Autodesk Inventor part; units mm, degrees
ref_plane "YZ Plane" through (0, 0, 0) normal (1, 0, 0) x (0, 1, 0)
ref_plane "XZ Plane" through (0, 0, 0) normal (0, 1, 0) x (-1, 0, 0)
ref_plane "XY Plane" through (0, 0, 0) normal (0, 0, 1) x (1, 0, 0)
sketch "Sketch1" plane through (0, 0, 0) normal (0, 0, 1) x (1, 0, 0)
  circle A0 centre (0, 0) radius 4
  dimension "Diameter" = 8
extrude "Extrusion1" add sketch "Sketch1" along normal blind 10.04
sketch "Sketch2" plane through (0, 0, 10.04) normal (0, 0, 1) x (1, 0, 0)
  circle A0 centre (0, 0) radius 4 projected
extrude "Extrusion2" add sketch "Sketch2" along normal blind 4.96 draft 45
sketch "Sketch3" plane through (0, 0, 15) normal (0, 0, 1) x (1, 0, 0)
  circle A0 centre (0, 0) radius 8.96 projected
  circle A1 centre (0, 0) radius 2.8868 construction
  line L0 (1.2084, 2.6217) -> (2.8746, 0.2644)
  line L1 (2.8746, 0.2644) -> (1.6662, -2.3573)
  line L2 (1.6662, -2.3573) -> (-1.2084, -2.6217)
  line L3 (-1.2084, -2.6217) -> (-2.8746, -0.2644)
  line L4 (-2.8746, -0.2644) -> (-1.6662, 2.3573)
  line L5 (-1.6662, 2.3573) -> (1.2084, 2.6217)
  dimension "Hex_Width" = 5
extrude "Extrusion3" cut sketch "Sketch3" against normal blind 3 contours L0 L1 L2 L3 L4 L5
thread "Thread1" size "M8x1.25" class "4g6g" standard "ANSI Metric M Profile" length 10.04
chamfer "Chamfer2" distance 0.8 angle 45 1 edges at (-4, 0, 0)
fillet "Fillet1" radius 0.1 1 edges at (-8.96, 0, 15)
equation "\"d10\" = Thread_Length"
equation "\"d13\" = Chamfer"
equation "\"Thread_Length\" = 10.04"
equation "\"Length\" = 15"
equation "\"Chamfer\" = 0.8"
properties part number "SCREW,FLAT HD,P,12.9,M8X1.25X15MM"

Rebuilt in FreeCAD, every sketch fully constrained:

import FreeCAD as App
import Part
import Sketcher

V = App.Vector
Q = App.Units.Quantity


def edges_at(feature, points):
    """Names of the edges that pass closest to the given points."""
    edges = feature.Shape.Edges
    near = lambda p: min(range(len(edges)), key=lambda i: edges[i].distToShape(Part.Vertex(*p))[0])
    return sorted({f"Edge{near(p) + 1}" for p in points})


def add_polygon(sketch, points):
    """Adds a closed chain of lines whose ends are joined by coincident constraints."""
    first, n = sketch.GeometryCount, len(points)
    for a, b in zip(points, points[1:] + points[:1]):
        sketch.addGeometry(Part.LineSegment(App.Vector(*a, 0), App.Vector(*b, 0)), False)
    for i in range(n):
        sketch.addConstraint(Sketcher.Constraint("Coincident", first + i, 2, first + (i + 1) % n, 1))

doc = App.newDocument("Part")
body = doc.addObject("PartDesign::Body", "Body")

# Sketch on XY plane
sketch1 = body.newObject("Sketcher::SketchObject", "Sketch")
sketch1.AttachmentSupport = (doc.getObject("XY_Plane"), [""])
sketch1.MapMode = "FlatFace"
sketch1.addGeometry(Part.Circle(V(0, 0, 0), V(0, 0, 1), 4), False)
sketch1.addConstraint(Sketcher.Constraint("Coincident", 0, 3, -1, 1))
sketch1.addConstraint(Sketcher.Constraint("Diameter", 0, Q("8 mm")))
pad1 = body.newObject("PartDesign::Pad", "Pad")
pad1.Profile = sketch1
pad1.Length = 10.04

# Sketch on XY plane
sketch2 = body.newObject("Sketcher::SketchObject", "Sketch001")
sketch2.AttachmentSupport = (doc.getObject("XY_Plane"), [""])
sketch2.MapMode = "FlatFace"
sketch2.AttachmentOffset = App.Placement(V(0, 0, 10.04), App.Rotation())
sketch2.addGeometry(Part.Circle(V(0, 0, 0), V(0, 0, 1), 4), False)
sketch2.addConstraint(Sketcher.Constraint("Coincident", 0, 3, -1, 1))
sketch2.addConstraint(Sketcher.Constraint("Diameter", 0, Q("8 mm")))
pad2 = body.newObject("PartDesign::Pad", "Pad001")
pad2.Profile = sketch2
pad2.Length = 4.96
pad2.TaperAngle = 45

# Sketch on XY plane
sketch3 = body.newObject("Sketcher::SketchObject", "Sketch002")
sketch3.AttachmentSupport = (doc.getObject("XY_Plane"), [""])
sketch3.MapMode = "FlatFace"
sketch3.AttachmentOffset = App.Placement(V(0, 0, 15), App.Rotation())
add_polygon(sketch3, [(2.9, 0.3), (1.2, 2.6), (-1.7, 2.4), (-2.9, -0.3), (-1.2, -2.6), (1.7, -2.4)])  # lines 0-5
sketch3.addConstraint(Sketcher.Constraint("Symmetric", 0, 2, 3, 2, -1, 1))
sketch3.addConstraint(Sketcher.Constraint("Symmetric", 1, 2, 4, 2, -1, 1))
sketch3.addConstraint(Sketcher.Constraint("Symmetric", 2, 2, 5, 2, -1, 1))
sketch3.addConstraint(Sketcher.Constraint("Equal", 0, 1))
sketch3.addConstraint(Sketcher.Constraint("Equal", 1, 2))
sketch3.addConstraint(Sketcher.Constraint("DistanceX", 2, 2, 0, 2, Q("4.083 mm")))
sketch3.addConstraint(Sketcher.Constraint("DistanceY", 2, 2, 0, 2, Q("2.886 mm")))
sketch3.addConstraint(Sketcher.Constraint("DistanceY", 3, 2, 1, 2, Q("4.979 mm")))
sketch3.addConstraint(Sketcher.Constraint("Distance", 0, Q("2.8867 mm")))
pocket1 = body.newObject("PartDesign::Pocket", "Pocket")
pocket1.Profile = sketch3
pocket1.Length = 3
doc.recompute()

chamfer = body.newObject("PartDesign::Chamfer", "Chamfer")
chamfer.Base = (pocket1, edges_at(pocket1, [(-4, 0, 0)]))
chamfer.Size = 0.8
doc.recompute()

fillet = body.newObject("PartDesign::Fillet", "Fillet")
fillet.Base = (chamfer, edges_at(chamfer, [(-8.96, 0, 15)]))
fillet.Radius = 0.1

doc.recompute()
